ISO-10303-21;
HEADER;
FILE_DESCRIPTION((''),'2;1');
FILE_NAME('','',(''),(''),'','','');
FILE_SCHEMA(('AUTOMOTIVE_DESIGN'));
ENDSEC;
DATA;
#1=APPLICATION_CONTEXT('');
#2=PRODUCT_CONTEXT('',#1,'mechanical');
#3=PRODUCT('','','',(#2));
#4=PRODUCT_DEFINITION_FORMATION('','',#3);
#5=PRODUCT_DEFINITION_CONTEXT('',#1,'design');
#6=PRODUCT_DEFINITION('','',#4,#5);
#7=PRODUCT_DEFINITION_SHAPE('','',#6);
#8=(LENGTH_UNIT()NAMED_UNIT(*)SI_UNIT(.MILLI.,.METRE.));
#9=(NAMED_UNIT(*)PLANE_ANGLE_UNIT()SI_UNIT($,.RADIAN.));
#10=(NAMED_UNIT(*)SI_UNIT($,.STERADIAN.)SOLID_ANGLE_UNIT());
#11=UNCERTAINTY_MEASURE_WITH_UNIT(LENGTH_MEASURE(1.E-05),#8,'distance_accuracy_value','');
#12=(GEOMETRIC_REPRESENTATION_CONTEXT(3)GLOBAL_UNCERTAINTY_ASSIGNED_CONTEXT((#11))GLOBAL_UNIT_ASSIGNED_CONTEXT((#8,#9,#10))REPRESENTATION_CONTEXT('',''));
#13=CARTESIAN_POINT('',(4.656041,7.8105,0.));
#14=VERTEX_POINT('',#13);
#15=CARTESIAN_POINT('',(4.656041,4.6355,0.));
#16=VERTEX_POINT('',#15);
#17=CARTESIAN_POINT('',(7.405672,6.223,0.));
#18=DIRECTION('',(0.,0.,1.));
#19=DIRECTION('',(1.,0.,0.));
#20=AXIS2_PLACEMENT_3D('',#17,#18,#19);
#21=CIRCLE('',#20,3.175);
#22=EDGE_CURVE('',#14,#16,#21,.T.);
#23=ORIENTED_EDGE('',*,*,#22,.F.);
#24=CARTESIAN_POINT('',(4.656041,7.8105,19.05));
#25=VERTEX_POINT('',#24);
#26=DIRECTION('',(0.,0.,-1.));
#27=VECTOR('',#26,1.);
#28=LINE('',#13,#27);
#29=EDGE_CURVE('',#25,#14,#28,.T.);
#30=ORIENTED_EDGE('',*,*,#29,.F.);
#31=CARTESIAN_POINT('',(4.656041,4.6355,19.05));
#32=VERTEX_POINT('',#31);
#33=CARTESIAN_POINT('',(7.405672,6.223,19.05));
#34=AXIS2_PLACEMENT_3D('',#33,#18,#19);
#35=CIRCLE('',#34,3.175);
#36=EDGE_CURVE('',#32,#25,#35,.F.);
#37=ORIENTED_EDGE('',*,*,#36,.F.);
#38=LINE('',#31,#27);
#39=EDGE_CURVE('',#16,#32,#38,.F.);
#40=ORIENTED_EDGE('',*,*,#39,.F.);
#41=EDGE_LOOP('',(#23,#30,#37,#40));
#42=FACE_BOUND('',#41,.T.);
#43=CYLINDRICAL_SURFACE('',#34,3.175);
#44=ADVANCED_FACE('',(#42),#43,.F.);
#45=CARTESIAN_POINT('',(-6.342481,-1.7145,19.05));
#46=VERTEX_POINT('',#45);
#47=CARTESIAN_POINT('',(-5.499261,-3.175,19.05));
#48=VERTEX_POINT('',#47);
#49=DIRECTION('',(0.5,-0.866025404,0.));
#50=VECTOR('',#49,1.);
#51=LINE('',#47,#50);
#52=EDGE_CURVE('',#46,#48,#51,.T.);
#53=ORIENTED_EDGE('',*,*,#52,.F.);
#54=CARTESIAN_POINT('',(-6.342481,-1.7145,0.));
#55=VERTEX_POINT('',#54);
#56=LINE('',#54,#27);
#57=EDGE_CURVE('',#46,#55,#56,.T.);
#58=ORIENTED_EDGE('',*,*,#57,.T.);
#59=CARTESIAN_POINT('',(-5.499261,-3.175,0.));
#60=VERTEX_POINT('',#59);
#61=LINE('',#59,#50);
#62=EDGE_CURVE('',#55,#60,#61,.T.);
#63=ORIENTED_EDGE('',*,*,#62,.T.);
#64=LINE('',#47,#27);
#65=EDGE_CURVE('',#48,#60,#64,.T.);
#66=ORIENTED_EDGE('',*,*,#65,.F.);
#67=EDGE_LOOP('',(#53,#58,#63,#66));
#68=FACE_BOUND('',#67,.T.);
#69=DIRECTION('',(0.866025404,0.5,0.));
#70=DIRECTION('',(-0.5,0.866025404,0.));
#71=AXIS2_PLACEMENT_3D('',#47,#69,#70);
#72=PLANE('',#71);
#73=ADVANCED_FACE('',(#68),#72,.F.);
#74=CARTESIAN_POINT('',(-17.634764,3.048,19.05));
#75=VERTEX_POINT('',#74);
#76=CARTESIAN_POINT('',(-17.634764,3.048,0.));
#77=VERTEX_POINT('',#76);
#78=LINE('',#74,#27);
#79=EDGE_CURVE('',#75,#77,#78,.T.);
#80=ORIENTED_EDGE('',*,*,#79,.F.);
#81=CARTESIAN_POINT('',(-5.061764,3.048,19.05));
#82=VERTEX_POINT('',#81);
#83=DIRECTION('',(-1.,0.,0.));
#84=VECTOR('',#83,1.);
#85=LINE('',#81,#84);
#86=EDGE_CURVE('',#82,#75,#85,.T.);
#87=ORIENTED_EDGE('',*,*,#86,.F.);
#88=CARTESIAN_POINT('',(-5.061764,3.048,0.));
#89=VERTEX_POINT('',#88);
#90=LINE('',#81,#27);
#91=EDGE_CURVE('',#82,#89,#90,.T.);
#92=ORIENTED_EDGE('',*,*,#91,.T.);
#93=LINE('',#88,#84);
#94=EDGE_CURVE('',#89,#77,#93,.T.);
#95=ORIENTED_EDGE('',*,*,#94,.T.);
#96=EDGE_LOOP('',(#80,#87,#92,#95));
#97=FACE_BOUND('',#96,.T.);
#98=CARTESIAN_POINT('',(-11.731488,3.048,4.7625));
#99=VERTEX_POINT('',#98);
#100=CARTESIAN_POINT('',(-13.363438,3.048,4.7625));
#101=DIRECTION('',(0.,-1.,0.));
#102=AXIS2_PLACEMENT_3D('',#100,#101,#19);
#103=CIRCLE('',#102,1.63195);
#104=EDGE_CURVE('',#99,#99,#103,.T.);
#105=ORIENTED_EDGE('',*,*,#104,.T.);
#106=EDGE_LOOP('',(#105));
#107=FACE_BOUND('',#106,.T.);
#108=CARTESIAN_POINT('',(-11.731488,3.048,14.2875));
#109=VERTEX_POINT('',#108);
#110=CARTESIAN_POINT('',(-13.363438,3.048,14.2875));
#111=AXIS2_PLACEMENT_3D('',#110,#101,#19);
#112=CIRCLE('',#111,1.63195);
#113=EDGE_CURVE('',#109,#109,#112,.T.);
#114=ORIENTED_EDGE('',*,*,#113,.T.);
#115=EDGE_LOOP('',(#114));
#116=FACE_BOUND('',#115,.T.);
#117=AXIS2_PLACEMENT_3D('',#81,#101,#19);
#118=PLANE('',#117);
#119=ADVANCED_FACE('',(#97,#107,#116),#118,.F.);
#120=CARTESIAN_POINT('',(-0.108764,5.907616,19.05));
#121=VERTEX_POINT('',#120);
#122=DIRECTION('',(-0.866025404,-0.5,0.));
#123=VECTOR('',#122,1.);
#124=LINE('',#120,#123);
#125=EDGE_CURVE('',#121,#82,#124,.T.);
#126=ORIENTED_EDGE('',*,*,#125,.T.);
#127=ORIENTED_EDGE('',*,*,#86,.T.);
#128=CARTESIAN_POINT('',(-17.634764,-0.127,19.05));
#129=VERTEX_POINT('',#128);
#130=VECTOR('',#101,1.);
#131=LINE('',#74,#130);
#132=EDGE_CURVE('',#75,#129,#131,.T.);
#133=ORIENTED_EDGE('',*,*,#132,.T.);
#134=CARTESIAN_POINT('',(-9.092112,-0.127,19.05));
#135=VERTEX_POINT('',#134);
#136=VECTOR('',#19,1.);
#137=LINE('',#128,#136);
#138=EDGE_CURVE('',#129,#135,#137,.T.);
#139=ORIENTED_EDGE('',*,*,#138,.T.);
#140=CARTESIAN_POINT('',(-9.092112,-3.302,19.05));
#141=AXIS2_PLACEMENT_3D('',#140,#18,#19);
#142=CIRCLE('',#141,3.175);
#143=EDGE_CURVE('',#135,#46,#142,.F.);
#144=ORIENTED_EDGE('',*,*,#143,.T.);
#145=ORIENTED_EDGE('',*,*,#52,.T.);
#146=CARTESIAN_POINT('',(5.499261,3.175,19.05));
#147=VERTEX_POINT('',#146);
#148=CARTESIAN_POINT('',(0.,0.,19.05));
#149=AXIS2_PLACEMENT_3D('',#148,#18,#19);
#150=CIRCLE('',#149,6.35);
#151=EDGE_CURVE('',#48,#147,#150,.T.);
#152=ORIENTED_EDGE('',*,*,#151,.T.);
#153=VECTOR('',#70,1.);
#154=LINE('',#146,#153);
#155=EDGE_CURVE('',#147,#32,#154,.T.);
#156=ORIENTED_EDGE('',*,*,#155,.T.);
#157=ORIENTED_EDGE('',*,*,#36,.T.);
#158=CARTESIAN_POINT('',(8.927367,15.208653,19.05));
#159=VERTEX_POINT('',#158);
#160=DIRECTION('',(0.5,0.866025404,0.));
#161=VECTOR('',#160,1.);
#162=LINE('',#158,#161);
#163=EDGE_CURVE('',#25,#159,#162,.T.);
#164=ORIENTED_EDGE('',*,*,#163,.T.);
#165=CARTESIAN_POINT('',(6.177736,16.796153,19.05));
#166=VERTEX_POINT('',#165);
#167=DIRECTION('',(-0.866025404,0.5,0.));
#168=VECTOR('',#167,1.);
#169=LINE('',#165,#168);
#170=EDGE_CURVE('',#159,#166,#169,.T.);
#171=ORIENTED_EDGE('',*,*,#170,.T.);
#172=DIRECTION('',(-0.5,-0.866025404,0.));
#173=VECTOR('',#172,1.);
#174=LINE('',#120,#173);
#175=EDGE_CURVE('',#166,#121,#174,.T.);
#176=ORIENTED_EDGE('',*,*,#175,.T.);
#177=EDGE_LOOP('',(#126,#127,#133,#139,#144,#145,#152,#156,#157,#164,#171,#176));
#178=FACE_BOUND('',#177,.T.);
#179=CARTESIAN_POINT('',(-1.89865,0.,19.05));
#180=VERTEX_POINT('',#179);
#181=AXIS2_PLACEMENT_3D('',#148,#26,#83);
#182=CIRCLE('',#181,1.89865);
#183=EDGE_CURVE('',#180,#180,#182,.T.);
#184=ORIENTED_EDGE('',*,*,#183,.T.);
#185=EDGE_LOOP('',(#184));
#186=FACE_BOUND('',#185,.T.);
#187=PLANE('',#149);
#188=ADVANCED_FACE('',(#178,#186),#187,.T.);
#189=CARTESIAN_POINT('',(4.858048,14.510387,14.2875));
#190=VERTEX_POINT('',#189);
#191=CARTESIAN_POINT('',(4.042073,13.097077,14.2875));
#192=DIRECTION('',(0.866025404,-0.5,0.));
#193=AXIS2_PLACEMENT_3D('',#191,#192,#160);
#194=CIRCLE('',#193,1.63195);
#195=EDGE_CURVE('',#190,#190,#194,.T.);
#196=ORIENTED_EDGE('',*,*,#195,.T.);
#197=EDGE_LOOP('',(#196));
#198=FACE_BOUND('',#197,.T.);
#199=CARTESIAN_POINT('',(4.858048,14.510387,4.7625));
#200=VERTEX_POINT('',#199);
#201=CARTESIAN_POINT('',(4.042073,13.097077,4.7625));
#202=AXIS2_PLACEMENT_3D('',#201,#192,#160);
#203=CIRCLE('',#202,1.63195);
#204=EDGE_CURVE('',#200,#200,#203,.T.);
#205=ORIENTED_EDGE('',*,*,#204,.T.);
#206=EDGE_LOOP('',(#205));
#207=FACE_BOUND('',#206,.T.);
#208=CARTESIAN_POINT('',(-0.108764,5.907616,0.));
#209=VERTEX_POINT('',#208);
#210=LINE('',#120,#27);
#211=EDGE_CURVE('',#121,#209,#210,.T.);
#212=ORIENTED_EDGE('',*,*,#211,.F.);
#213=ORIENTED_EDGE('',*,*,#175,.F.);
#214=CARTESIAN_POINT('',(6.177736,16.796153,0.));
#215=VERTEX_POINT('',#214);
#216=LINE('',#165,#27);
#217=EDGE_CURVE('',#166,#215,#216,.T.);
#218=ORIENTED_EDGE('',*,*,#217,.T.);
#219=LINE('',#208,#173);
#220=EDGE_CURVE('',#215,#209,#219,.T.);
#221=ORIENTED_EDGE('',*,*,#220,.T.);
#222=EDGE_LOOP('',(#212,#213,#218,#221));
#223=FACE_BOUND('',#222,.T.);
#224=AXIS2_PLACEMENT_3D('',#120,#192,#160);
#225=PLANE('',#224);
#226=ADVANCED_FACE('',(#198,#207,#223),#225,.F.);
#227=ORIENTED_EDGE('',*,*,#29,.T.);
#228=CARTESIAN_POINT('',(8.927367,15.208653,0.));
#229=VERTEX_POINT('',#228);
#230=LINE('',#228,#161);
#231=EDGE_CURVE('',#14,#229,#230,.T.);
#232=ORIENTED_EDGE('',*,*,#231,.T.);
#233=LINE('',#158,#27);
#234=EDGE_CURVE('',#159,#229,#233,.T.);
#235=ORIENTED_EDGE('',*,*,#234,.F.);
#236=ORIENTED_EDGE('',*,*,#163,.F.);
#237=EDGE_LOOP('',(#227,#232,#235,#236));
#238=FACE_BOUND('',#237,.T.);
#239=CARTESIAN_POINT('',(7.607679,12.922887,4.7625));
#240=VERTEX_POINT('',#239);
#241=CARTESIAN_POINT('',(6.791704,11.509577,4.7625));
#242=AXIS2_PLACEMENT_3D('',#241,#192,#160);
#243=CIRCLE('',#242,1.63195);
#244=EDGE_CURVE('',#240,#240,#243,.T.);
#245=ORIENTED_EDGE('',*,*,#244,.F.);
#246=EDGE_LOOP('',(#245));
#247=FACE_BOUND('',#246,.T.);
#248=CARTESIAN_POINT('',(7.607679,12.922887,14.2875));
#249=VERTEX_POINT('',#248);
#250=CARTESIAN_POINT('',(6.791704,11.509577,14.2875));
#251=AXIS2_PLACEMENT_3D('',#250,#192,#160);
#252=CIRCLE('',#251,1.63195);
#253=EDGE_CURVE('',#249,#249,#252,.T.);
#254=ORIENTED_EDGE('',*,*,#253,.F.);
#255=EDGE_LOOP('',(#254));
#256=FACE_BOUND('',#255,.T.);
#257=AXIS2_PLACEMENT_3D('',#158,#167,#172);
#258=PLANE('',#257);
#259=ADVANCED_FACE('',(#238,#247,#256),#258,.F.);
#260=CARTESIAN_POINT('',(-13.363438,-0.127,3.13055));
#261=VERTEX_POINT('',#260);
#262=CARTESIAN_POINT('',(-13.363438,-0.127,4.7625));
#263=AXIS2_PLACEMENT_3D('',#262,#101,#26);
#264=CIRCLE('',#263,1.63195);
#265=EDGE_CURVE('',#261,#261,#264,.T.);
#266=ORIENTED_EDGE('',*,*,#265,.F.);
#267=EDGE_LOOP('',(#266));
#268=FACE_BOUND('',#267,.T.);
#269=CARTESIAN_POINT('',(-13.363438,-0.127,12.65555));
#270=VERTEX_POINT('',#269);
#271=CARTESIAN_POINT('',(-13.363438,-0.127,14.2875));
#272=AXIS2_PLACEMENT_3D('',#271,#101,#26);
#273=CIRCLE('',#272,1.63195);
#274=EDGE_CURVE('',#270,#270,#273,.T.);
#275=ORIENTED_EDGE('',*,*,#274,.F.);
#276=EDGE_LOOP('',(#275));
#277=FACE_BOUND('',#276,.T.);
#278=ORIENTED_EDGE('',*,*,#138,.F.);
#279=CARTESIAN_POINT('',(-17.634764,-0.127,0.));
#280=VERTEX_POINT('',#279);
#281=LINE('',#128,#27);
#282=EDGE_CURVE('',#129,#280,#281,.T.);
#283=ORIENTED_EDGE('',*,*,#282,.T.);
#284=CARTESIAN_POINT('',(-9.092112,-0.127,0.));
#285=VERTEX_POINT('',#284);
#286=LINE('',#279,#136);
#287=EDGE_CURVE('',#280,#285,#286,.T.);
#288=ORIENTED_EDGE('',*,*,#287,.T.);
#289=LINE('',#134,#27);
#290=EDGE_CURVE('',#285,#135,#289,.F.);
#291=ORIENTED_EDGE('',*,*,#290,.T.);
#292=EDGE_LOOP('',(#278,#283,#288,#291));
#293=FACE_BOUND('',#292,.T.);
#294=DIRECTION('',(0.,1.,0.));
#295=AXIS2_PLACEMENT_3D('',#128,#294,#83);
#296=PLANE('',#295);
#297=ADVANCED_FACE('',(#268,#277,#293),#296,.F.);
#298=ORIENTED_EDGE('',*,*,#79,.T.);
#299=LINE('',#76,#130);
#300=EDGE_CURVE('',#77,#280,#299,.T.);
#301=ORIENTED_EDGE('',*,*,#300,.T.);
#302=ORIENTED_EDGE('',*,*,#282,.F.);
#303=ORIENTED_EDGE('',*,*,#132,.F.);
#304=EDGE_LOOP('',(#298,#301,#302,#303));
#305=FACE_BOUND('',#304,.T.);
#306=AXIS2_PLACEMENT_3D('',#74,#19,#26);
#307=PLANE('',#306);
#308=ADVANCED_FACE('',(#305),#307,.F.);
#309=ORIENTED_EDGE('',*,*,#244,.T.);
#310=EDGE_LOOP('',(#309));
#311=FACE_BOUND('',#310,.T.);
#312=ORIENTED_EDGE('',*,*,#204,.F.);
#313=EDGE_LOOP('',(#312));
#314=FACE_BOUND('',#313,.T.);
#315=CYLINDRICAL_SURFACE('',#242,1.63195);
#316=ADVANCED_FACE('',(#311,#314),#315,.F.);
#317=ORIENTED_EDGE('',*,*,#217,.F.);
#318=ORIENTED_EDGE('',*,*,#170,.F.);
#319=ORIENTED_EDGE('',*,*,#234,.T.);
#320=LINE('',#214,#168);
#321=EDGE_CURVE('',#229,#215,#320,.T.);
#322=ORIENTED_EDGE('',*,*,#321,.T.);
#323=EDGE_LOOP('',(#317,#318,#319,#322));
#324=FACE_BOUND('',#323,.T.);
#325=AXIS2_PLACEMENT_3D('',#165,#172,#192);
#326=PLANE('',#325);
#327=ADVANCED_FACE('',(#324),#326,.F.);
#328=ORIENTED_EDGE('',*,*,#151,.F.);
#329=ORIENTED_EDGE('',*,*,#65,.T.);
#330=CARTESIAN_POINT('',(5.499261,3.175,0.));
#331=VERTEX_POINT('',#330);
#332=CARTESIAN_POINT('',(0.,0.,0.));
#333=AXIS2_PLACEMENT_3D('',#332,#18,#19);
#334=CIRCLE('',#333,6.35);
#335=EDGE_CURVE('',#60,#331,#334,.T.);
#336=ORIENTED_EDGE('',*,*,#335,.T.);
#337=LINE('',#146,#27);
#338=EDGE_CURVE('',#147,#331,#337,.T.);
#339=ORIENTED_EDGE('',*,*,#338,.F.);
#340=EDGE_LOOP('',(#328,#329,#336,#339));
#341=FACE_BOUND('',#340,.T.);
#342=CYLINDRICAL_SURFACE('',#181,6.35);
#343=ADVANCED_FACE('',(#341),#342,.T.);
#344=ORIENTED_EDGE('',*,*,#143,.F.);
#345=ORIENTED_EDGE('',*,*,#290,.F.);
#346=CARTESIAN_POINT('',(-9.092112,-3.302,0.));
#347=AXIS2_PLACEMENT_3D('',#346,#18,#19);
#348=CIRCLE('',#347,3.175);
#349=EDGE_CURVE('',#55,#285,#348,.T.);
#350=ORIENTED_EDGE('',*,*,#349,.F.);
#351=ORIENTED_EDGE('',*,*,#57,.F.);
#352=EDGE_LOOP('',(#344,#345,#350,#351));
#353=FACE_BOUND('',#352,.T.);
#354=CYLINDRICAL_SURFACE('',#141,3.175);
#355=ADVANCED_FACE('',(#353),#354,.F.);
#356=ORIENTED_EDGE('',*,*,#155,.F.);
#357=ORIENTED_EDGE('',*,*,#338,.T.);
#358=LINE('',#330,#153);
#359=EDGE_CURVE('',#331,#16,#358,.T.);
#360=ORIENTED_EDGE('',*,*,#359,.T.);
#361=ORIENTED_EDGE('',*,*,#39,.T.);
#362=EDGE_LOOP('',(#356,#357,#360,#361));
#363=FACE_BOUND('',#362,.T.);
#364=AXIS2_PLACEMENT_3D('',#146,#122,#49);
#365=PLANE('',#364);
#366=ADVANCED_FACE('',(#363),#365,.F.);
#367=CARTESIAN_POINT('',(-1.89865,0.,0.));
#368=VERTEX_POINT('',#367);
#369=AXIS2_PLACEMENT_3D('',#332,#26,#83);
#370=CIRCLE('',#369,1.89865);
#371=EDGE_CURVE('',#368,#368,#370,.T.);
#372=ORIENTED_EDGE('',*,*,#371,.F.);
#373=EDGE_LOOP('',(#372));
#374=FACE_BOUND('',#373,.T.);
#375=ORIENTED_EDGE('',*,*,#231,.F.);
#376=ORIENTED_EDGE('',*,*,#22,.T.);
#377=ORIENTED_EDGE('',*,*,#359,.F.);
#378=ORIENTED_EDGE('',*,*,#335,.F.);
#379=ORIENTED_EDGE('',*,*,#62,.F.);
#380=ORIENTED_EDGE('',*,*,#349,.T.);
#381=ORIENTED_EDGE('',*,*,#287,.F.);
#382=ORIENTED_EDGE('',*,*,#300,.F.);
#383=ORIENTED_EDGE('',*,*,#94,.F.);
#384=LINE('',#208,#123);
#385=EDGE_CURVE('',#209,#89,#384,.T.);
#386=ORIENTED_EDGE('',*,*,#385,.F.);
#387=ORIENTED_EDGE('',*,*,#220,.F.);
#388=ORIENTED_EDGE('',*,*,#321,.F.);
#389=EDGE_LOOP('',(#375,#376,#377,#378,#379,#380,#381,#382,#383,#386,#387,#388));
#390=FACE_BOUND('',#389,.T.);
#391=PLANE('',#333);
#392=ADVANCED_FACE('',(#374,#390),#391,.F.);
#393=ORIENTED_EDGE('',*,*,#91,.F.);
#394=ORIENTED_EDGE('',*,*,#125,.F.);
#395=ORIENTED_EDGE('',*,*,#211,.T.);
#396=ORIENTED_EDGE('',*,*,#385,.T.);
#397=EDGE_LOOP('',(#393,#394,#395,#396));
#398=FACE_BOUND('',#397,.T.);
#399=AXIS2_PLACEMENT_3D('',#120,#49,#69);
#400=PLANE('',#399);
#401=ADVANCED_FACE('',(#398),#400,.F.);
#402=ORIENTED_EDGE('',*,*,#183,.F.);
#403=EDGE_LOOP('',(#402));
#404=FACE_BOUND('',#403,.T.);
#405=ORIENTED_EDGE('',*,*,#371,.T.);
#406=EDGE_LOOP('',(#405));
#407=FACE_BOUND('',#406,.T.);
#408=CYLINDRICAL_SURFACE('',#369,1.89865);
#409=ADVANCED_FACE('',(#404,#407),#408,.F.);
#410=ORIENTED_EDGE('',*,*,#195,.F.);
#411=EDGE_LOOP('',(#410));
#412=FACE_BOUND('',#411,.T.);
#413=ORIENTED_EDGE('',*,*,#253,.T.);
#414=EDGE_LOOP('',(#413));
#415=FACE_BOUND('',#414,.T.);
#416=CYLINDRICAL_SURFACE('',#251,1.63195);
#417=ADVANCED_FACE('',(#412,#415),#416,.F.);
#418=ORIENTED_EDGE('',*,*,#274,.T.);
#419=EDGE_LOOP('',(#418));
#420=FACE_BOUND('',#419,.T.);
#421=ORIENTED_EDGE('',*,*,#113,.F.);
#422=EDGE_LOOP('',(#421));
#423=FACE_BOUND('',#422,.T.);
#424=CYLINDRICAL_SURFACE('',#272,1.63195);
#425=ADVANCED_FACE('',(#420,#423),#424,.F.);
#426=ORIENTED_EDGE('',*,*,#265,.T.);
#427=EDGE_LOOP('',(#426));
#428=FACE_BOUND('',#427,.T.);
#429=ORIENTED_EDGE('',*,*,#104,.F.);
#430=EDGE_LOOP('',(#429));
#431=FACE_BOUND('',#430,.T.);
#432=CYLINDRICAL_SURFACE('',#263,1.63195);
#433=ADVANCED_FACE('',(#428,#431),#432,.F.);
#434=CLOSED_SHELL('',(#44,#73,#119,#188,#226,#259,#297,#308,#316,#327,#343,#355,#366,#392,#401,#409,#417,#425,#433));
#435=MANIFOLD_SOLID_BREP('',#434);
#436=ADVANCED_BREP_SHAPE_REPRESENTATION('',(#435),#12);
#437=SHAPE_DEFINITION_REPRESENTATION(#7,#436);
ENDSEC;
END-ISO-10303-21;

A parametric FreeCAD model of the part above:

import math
import FreeCAD as App
import Part
import Sketcher
Q = App.Units.Quantity


def edges_at(feature, points):
    """Names of the edges that pass closest to the given points."""
    edges = feature.Shape.Edges
    near = lambda p: min(range(len(edges)), key=lambda i: edges[i].distToShape(Part.Vertex(*p))[0])
    return sorted({f"Edge{near(p) + 1}" for p in points})

doc = App.newDocument("Part")
params = doc.addObject("Spreadsheet::Sheet", "Params")
for row, (alias, value) in enumerate([
    ("sketch1_radius", "0.25 in"),
    ("sketch1_width", "0.495 in"),
    ("sketch1_height", "0.125 in"),
    ("sketch1_length", "0.495 in"),
    ("sketch1_length2", "0.125 in"),
    ("pad1_length", "0.75 in"),
    ("hole_diameter", "0.1495 in"),
    ("fillet_radius", "0.125 in"),
    ("hole2_diameter", "0.1285 in"),
    ("hole3_diameter", "0.1285 in"),
], start=1):
    params.set(f"A{row}", alias)
    params.set(f"B{row}", "=" + value)
    params.setAlias(f"B{row}", alias)

body = doc.addObject("PartDesign::Body", "Body")

sketch1 = body.newObject("Sketcher::SketchObject", "Sketch")
sketch1.AttachmentSupport = (doc.getObject("XY_Plane"), [""])
sketch1.MapMode = "FlatFace"
sketch1.addGeometry([
    Part.LineSegment(App.Vector(6.2, 16.8, 0), App.Vector(-0.1, 5.9, 0)),
    Part.LineSegment(App.Vector(-0.1, 5.9, 0), App.Vector(-5.1, 3, 0)),
    Part.LineSegment(App.Vector(-5.1, 3, 0), App.Vector(-17.6, 3, 0)),
    Part.LineSegment(App.Vector(-17.6, 3, 0), App.Vector(-17.6, -0.1, 0)),
    Part.LineSegment(App.Vector(-17.6, -0.1, 0), App.Vector(-7.3, -0.1, 0)),
    Part.LineSegment(App.Vector(-7.3, -0.1, 0), App.Vector(-5.5, -3.2, 0)),
    Part.ArcOfCircle(Part.Circle(App.Vector(0, 0, 0), App.Vector(0, 0, 1), 6.3), math.radians(-150), math.radians(30)),
    Part.LineSegment(App.Vector(5.5, 3.2, 0), App.Vector(3.7, 6.2, 0)),
    Part.LineSegment(App.Vector(3.7, 6.2, 0), App.Vector(8.9, 15.2, 0)),
    Part.LineSegment(App.Vector(8.9, 15.2, 0), App.Vector(6.2, 16.8, 0)),
], False)
sketch1.addConstraint([
    Sketcher.Constraint("Coincident", 0, 2, 1, 1),
    Sketcher.Constraint("Coincident", 1, 2, 2, 1),
    Sketcher.Constraint("Coincident", 2, 2, 3, 1),
    Sketcher.Constraint("Coincident", 3, 2, 4, 1),
    Sketcher.Constraint("Coincident", 4, 2, 5, 1),
    Sketcher.Constraint("Tangent", 5, 2, 6, 1),
    Sketcher.Constraint("Tangent", 6, 2, 7, 1),
    Sketcher.Constraint("Coincident", 7, 2, 8, 1),
    Sketcher.Constraint("Coincident", 8, 2, 9, 1),
    Sketcher.Constraint("Coincident", 9, 2, 0, 1),
    Sketcher.Constraint("Horizontal", 2),
    Sketcher.Constraint("Vertical", 3),
    Sketcher.Constraint("Horizontal", 4),
    Sketcher.Constraint("Coincident", 6, 3, -1, 1),
    Sketcher.Constraint("Perpendicular", 1, 5),
    Sketcher.Constraint("Parallel", 5, 7),
    Sketcher.Constraint("Parallel", 0, 8),
    Sketcher.Constraint("Perpendicular", 8, 9),
    Sketcher.Constraint("Equal", 5, 7),
    Sketcher.Constraint("Radius", 6, Q("0.25 in")),
    Sketcher.Constraint("Angle", 0, Q("-120 deg")),
    Sketcher.Constraint("Angle", 1, Q("-150 deg")),
    Sketcher.Constraint("DistanceX", 2, 2, 2, 1, Q("0.495 in")),
    Sketcher.Constraint("DistanceY", 3, 2, 3, 1, Q("0.125 in")),
    Sketcher.Constraint("DistanceY", -1, 1, 1, 2, Q("0.12 in")),
    Sketcher.Constraint("DistanceX", 2, 2, 0, 2, Q("0.69 in")),
    Sketcher.Constraint("Distance", 0, Q("0.495 in")),
    Sketcher.Constraint("Distance", 9, Q("0.125 in")),
])
sketch1.setExpression("Constraints[19]", "Params.sketch1_radius")
sketch1.setExpression("Constraints[22]", "Params.sketch1_width")
sketch1.setExpression("Constraints[23]", "Params.sketch1_height")
sketch1.setExpression("Constraints[26]", "Params.sketch1_length")
sketch1.setExpression("Constraints[27]", "Params.sketch1_length2")
pad1 = body.newObject("PartDesign::Pad", "Pad")
pad1.Profile = sketch1
pad1.setExpression("Length", "Params.pad1_length")

sketch2 = body.newObject("Sketcher::SketchObject", "Sketch001")
sketch2.AttachmentSupport = (doc.getObject("XY_Plane"), [""])
sketch2.MapMode = "FlatFace"
sketch2.addGeometry(Part.Circle(App.Vector(0, 0, 0), App.Vector(0, 0, 1), 1.9), False)
sketch2.addConstraint([
    Sketcher.Constraint("Coincident", 0, 3, -1, 1),
    Sketcher.Constraint("Diameter", 0, Q("0.1495 in")),
])
doc.recompute()
hole = body.newObject("PartDesign::Hole", "Hole")
hole.Profile = sketch2
hole.ThreadType = "None"
hole.setExpression("Diameter", "Params.hole_diameter")
hole.DepthType = "ThroughAll"
hole.Reversed = True
doc.recompute()

fillet = body.newObject("PartDesign::Fillet", "Fillet")
fillet.Base = (hole, edges_at(hole, [(3.739, 6.223, 9.525), (-7.259, -0.127, 9.525)]))
fillet.setExpression("Radius", "Params.fillet_radius")

sketch3 = body.newObject("Sketcher::SketchObject", "Sketch002")
sketch3.Placement = App.Placement(App.Vector(0.109985, -0.0635, 0), App.Rotation(App.Vector(0, 0, -1), App.Vector(0.5, 0.866025404, 0), App.Vector(0.866025404, -0.5, 0), "ZXY"))
sketch3.addGeometry([
    Part.Circle(App.Vector(-4.8, 13.4, 0), App.Vector(0, 0, 1), 1.6),
    Part.Circle(App.Vector(-14.3, 13.4, 0), App.Vector(0, 0, 1), 1.6),
], False)
sketch3.addConstraint([
    Sketcher.Constraint("Equal", 0, 1),
    Sketcher.Constraint("Horizontal", 0, 3, 1, 3),
    Sketcher.Constraint("Diameter", 0, Q("0.1285 in")),
    Sketcher.Constraint("DistanceX", 0, 3, -1, 1, Q("0.1875 in")),
    Sketcher.Constraint("DistanceX", 1, 3, -1, 1, Q("0.5625 in")),
    Sketcher.Constraint("DistanceY", -1, 1, 0, 3, Q("13.363438 mm")),
])
doc.recompute()
hole2 = body.newObject("PartDesign::Hole", "Hole001")
hole2.Profile = sketch3
hole2.ThreadType = "None"
hole2.setExpression("Diameter", "Params.hole2_diameter")
hole2.DepthType = "ThroughAll"

sketch4 = body.newObject("Sketcher::SketchObject", "Sketch003")
sketch4.AttachmentSupport = (doc.getObject("XZ_Plane"), [""])
sketch4.MapMode = "FlatFace"
sketch4.AttachmentOffset = App.Placement(App.Vector(0, 0, 0.005 * 25.4), App.Rotation())
sketch4.addGeometry([
    Part.Circle(App.Vector(-13.4, 14.3, 0), App.Vector(0, 0, 1), 1.6),
    Part.Circle(App.Vector(-13.4, 4.8, 0), App.Vector(0, 0, 1), 1.6),
], False)
sketch4.addConstraint([
    Sketcher.Constraint("Equal", 0, 1),
    Sketcher.Constraint("Vertical", 0, 3, 1, 3),
    Sketcher.Constraint("Diameter", 0, Q("0.1285 in")),
    Sketcher.Constraint("DistanceY", -1, 1, 0, 3, Q("0.5625 in")),
    Sketcher.Constraint("DistanceY", -1, 1, 1, 3, Q("0.1875 in")),
    Sketcher.Constraint("DistanceX", 0, 3, -1, 1, Q("13.363438 mm")),
])
doc.recompute()
hole3 = body.newObject("PartDesign::Hole", "Hole002")
hole3.Profile = sketch4
hole3.ThreadType = "None"
hole3.setExpression("Diameter", "Params.hole3_diameter")
hole3.DepthType = "ThroughAll"

doc.recompute()
